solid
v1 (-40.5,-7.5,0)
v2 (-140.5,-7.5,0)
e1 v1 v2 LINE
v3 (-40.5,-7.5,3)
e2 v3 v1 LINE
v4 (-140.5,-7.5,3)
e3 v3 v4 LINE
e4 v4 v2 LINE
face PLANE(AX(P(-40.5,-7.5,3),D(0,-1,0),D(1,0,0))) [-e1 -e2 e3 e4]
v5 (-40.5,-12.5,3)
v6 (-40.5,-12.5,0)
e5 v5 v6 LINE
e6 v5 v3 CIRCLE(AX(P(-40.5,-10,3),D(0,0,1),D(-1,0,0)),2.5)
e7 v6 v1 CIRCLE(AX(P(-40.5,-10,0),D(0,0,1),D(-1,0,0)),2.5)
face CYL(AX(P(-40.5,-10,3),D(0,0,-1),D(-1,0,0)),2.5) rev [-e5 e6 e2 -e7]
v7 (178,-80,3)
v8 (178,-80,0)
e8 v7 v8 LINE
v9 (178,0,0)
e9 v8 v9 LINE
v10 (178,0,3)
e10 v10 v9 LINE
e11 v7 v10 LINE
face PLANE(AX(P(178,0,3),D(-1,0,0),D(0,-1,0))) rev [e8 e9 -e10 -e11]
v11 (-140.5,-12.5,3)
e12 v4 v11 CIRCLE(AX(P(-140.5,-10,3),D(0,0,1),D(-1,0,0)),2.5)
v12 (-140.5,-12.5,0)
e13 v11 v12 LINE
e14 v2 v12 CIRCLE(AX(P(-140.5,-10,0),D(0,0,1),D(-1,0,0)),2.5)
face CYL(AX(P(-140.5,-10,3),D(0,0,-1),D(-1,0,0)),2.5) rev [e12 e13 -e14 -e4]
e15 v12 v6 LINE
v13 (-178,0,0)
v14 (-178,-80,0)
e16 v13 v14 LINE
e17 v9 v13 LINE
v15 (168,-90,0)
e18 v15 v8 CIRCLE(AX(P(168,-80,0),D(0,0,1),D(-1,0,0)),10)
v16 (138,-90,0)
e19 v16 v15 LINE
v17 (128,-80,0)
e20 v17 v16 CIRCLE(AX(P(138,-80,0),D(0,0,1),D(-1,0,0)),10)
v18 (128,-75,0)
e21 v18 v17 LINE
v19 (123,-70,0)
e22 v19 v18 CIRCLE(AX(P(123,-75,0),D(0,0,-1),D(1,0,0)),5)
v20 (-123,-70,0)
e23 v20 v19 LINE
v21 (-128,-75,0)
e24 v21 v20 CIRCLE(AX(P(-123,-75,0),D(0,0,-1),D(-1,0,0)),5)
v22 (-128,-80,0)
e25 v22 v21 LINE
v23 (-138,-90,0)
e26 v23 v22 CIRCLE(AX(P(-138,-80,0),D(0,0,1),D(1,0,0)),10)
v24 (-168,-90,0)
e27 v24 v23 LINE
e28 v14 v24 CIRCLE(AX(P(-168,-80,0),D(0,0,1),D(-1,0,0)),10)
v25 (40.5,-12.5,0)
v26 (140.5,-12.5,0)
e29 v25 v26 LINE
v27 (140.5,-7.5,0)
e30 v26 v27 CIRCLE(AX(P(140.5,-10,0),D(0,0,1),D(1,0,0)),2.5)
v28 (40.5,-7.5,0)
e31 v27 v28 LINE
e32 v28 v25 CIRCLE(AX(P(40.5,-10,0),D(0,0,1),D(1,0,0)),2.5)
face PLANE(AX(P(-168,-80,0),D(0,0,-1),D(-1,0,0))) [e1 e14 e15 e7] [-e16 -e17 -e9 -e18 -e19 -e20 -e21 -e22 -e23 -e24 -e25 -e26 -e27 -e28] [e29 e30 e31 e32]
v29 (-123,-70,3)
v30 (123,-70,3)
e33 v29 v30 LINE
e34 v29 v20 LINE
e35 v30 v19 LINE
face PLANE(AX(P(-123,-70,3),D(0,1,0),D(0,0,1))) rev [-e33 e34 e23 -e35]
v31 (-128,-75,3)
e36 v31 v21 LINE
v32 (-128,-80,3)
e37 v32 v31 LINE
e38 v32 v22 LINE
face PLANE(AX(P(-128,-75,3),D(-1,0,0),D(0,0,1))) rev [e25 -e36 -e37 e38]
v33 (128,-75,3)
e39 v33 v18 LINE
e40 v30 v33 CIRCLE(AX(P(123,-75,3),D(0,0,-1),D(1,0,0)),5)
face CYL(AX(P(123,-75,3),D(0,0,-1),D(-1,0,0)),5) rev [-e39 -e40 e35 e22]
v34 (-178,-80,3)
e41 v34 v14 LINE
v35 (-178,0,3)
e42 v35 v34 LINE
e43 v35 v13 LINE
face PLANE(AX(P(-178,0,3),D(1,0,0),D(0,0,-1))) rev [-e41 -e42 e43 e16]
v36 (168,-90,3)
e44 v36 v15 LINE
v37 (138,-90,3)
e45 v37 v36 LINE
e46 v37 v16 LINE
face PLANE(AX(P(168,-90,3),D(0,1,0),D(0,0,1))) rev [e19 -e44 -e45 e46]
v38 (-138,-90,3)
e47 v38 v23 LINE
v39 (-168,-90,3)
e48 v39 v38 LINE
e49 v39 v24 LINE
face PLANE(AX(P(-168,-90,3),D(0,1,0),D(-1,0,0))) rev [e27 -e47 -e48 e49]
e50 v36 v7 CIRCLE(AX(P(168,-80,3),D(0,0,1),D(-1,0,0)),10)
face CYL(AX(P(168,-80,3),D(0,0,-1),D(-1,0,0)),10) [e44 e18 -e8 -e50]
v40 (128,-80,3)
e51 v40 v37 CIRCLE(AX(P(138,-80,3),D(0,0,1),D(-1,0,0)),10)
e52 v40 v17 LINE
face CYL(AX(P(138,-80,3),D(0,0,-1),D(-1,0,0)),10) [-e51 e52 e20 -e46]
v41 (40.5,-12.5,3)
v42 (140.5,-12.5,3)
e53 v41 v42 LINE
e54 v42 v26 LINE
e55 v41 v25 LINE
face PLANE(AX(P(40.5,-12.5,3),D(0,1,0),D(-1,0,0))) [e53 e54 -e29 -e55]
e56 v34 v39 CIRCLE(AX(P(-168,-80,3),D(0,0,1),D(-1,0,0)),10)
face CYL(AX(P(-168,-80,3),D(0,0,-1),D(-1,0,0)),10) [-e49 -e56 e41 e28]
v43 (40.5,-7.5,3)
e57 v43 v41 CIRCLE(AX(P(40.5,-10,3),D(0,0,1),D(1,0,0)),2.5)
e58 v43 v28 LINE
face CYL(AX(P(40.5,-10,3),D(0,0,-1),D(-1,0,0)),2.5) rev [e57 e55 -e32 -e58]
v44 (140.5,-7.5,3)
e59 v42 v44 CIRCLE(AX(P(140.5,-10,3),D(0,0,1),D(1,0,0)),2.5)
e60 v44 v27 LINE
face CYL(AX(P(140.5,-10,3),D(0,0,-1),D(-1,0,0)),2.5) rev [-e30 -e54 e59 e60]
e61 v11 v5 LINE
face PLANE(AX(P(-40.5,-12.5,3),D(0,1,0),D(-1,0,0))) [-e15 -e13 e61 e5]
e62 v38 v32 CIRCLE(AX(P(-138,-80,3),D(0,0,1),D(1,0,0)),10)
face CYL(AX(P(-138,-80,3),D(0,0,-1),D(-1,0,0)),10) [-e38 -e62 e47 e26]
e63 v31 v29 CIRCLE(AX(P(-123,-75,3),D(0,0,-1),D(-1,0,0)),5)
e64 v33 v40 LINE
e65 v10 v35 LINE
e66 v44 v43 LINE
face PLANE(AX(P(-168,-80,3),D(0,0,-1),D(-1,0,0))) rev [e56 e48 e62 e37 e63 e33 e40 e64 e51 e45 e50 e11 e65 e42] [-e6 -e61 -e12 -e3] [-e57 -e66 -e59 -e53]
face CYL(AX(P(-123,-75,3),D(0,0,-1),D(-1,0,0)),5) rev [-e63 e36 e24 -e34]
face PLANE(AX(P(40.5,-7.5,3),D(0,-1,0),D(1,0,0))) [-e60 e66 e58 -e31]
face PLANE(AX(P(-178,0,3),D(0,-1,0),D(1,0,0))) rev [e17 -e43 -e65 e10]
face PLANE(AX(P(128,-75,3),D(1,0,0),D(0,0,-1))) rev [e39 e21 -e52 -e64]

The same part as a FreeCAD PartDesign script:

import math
import FreeCAD as App
import Part
import Sketcher
from FreeCAD import Vector

doc = App.newDocument("Part")
body = doc.addObject("PartDesign::Body", "Body")

# Sketch on XY plane
sketch1 = doc.addObject("Sketcher::SketchObject", "Sketch")
body.addObject(sketch1)
sketch1.AttachmentSupport = (doc.XY_Plane, [""])
sketch1.MapMode = "FlatFace"
sketch1.addGeometry([
    Part.LineSegment(Vector(178, 0, 0), Vector(-178, 0, 0)),  # 0
    Part.LineSegment(Vector(-178, 0, 0), Vector(-178, -80, 0)),  # 1
    Part.ArcOfCircle(Part.Circle(Vector(-168, -80, 0), Vector(0, 0, 1), 10), math.radians(180), math.radians(270)),  # 2
    Part.LineSegment(Vector(-168, -90, 0), Vector(-138, -90, 0)),  # 3
    Part.ArcOfCircle(Part.Circle(Vector(-138, -80, 0), Vector(0, 0, 1), 10), math.radians(-90), math.radians(0)),  # 4
    Part.LineSegment(Vector(-128, -80, 0), Vector(-128, -75, 0)),  # 5
    Part.ArcOfCircle(Part.Circle(Vector(-123, -75, 0), Vector(0, 0, 1), 5), math.radians(90), math.radians(180)),  # 6
    Part.LineSegment(Vector(-123, -70, 0), Vector(123, -70, 0)),  # 7
    Part.ArcOfCircle(Part.Circle(Vector(123, -75, 0), Vector(0, 0, 1), 5), math.radians(0), math.radians(90)),  # 8
    Part.LineSegment(Vector(128, -75, 0), Vector(128, -80, 0)),  # 9
    Part.ArcOfCircle(Part.Circle(Vector(138, -80, 0), Vector(0, 0, 1), 10), math.radians(180), math.radians(270)),  # 10
    Part.LineSegment(Vector(138, -90, 0), Vector(168, -90, 0)),  # 11
    Part.ArcOfCircle(Part.Circle(Vector(168, -80, 0), Vector(0, 0, 1), 10), math.radians(-90), math.radians(0)),  # 12
    Part.LineSegment(Vector(178, -80, 0), Vector(178, 0, 0)),  # 13
    Part.LineSegment(Vector(40.5, -7.5, 0), Vector(140.5, -7.5, 0)),  # 14
    Part.ArcOfCircle(Part.Circle(Vector(140.5, -10, 0), Vector(0, 0, 1), 2.5), math.radians(-90), math.radians(90)),  # 15
    Part.LineSegment(Vector(140.5, -12.5, 0), Vector(40.5, -12.5, 0)),  # 16
    Part.ArcOfCircle(Part.Circle(Vector(40.5, -10, 0), Vector(0, 0, 1), 2.5), math.radians(90), math.radians(270)),  # 17
    Part.ArcOfCircle(Part.Circle(Vector(-40.5, -10, 0), Vector(0, 0, 1), 2.5), math.radians(-90), math.radians(90)),  # 18
    Part.LineSegment(Vector(-40.5, -12.5, 0), Vector(-140.5, -12.5, 0)),  # 19
    Part.ArcOfCircle(Part.Circle(Vector(-140.5, -10, 0), Vector(0, 0, 1), 2.5), math.radians(90), math.radians(270)),  # 20
    Part.LineSegment(Vector(-140.5, -7.5, 0), Vector(-40.5, -7.5, 0)),  # 21
], False)
sketch1.addConstraint([
    Sketcher.Constraint("Coincident", 0, 2, 1, 1),
    Sketcher.Constraint("Tangent", 1, 2, 2, 1),
    Sketcher.Constraint("Tangent", 2, 2, 3, 1),
    Sketcher.Constraint("Tangent", 3, 2, 4, 1),
    Sketcher.Constraint("Tangent", 4, 2, 5, 1),
    Sketcher.Constraint("Tangent", 5, 2, 6, 2),
    Sketcher.Constraint("Tangent", 6, 1, 7, 1),
    Sketcher.Constraint("Tangent", 7, 2, 8, 2),
    Sketcher.Constraint("Tangent", 8, 1, 9, 1),
    Sketcher.Constraint("Tangent", 9, 2, 10, 1),
    Sketcher.Constraint("Tangent", 10, 2, 11, 1),
    Sketcher.Constraint("Tangent", 11, 2, 12, 1),
    Sketcher.Constraint("Tangent", 12, 2, 13, 1),
    Sketcher.Constraint("Coincident", 13, 2, 0, 1),
    Sketcher.Constraint("Tangent", 14, 2, 15, 2),
    Sketcher.Constraint("Tangent", 15, 1, 16, 1),
    Sketcher.Constraint("Tangent", 16, 2, 17, 2),
    Sketcher.Constraint("Tangent", 17, 1, 14, 1),
    Sketcher.Constraint("Tangent", 18, 1, 19, 1),
    Sketcher.Constraint("Tangent", 19, 2, 20, 2),
    Sketcher.Constraint("Tangent", 20, 1, 21, 1),
    Sketcher.Constraint("Tangent", 21, 2, 18, 2),
    Sketcher.Constraint("Horizontal", 0),
    Sketcher.Constraint("Vertical", 1),
    Sketcher.Constraint("Horizontal", 3),
    Sketcher.Constraint("Vertical", 5),
    Sketcher.Constraint("Horizontal", 7),
    Sketcher.Constraint("Vertical", 9),
    Sketcher.Constraint("Horizontal", 11),
    Sketcher.Constraint("Vertical", 13),
    Sketcher.Constraint("Horizontal", 14),
    Sketcher.Constraint("Horizontal", 16),
    Sketcher.Constraint("Horizontal", 19),
    Sketcher.Constraint("Horizontal", 21),
    Sketcher.Constraint("Equal", 2, 4),
    Sketcher.Constraint("Equal", 6, 8),
    Sketcher.Constraint("Equal", 4, 10),
    Sketcher.Constraint("Equal", 10, 12),
    Sketcher.Constraint("Equal", 17, 18),
    Sketcher.Constraint("Symmetric", 0, 2, 13, 2, -1, 1),
    Sketcher.Constraint("Symmetric", 4, 3, 10, 3, -2),
    Sketcher.Constraint("Symmetric", 17, 3, 18, 3, -2),
    Sketcher.Constraint("Equal", 16, 19),
    Sketcher.Constraint("Radius", 2, 10.0),
    Sketcher.Constraint("Radius", 6, 5.0),
    Sketcher.Constraint("Radius", 15, 2.5),
    Sketcher.Constraint("DistanceX", 0, 2, 0, 1, 356.0),
    Sketcher.Constraint("DistanceX", 3, 1, 3, 2, 30.0),
    Sketcher.Constraint("DistanceX", 14, 1, 14, 2, 100.0),
    Sketcher.Constraint("DistanceY", 1, 2, 1, 1, 80.0),
    Sketcher.Constraint("DistanceY", 5, 1, 5, 2, 5.0),
    Sketcher.Constraint("DistanceY", 15, 3, -1, 1, 10.0),
    Sketcher.Constraint("DistanceX", 18, 3, 17, 3, 81.0),
])
pad1 = doc.addObject("PartDesign::Pad", "Pad")
body.addObject(pad1)
pad1.Profile = sketch1
pad1.Length = 3

doc.recompute()
